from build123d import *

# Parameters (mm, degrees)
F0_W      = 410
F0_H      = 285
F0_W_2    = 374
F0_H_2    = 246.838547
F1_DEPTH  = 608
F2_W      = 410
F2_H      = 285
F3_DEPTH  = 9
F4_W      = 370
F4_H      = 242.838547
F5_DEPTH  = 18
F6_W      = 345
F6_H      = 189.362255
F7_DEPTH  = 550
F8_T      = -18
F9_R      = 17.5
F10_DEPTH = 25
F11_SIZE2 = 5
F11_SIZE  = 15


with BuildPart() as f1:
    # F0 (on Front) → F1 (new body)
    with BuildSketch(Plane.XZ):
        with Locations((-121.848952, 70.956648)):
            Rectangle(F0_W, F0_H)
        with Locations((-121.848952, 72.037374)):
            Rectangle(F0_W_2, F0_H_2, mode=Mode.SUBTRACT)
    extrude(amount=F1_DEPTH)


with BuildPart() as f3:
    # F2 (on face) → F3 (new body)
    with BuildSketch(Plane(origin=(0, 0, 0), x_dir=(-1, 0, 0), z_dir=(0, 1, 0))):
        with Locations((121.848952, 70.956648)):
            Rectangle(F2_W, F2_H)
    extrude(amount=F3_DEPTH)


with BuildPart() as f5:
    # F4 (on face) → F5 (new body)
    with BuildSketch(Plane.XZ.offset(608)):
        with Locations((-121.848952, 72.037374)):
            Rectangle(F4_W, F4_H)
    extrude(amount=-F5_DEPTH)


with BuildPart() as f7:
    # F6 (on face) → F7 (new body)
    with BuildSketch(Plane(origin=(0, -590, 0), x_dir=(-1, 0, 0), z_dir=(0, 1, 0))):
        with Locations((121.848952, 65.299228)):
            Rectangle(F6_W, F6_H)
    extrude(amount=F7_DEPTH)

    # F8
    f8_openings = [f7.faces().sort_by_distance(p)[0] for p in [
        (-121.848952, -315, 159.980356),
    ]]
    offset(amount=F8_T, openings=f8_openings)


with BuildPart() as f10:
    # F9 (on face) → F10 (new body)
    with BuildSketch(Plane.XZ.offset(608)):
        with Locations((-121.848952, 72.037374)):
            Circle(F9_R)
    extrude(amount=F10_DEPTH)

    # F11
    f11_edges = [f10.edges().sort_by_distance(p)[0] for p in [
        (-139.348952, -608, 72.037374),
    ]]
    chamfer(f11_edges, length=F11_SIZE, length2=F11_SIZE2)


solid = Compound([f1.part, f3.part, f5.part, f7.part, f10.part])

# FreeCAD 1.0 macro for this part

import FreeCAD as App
import Part
import Sketcher
from FreeCAD import Vector


def edges_at(feature, points):
    """Names of the edges that pass closest to the given points."""
    edges = feature.Shape.Edges
    near = lambda p: min(range(len(edges)), key=lambda i: edges[i].distToShape(Part.Vertex(*p))[0])
    return sorted({f"Edge{near(p) + 1}" for p in points})


def faces_at(feature, points):
    """Names of the faces that lie closest to the given points."""
    faces = feature.Shape.Faces
    near = lambda p: min(range(len(faces)), key=lambda i: faces[i].distToShape(Part.Vertex(*p))[0])
    return sorted({f"Face{near(p) + 1}" for p in points})

doc = App.newDocument("Part")
params = doc.addObject("Spreadsheet::Sheet", "Params")
for row, (alias, value) in enumerate([
    ("sketch1_width", "410 mm"),
    ("sketch1_width2", "374 mm"),
    ("sketch1_height", "285 mm"),
    ("pad1_length", "608 mm"),
    ("sketch2_width", "410 mm"),
    ("sketch2_height", "285 mm"),
    ("pad2_length", "9 mm"),
    ("sketch3_width", "370 mm"),
    ("pad3_length", "18 mm"),
    ("sketch4_width", "345 mm"),
    ("pad4_length", "550 mm"),
    ("thickness_wall", "18 mm"),
    ("sketch5_diameter", "35 mm"),
    ("pad5_length", "25 mm"),
    ("chamfer_size", "15 mm"),
    ("chamfer_size2", "5 mm"),
], start=1):
    params.set(f"A{row}", alias)
    params.set(f"B{row}", "=" + value)
    params.setAlias(f"B{row}", alias)

body = doc.addObject("PartDesign::Body", "Body")

sketch1 = body.newObject("Sketcher::SketchObject", "Sketch")
sketch1.AttachmentSupport = (doc.getObject("XZ_Plane"), [""])
sketch1.MapMode = "FlatFace"
sketch1.addGeometry(Part.LineSegment(Vector(-327, 213, 0), Vector(-327, -72, 0)), False)
sketch1.addGeometry(Part.LineSegment(Vector(-327, -72, 0), Vector(83, -72, 0)), False)
sketch1.addGeometry(Part.LineSegment(Vector(83, -72, 0), Vector(83, 213, 0)), False)
sketch1.addGeometry(Part.LineSegment(Vector(83, 213, 0), Vector(-327, 213, 0)), False)
sketch1.addGeometry(Part.LineSegment(Vector(65, -51, 0), Vector(-309, -51, 0)), False)
sketch1.addGeometry(Part.LineSegment(Vector(-309, -51, 0), Vector(-309, 195, 0)), False)
sketch1.addGeometry(Part.LineSegment(Vector(-309, 195, 0), Vector(65, 195, 0)), False)
sketch1.addGeometry(Part.LineSegment(Vector(65, 195, 0), Vector(65, -51, 0)), False)
sketch1.addConstraint(Sketcher.Constraint("Coincident", 0, 2, 1, 1))
sketch1.addConstraint(Sketcher.Constraint("Coincident", 1, 2, 2, 1))
sketch1.addConstraint(Sketcher.Constraint("Coincident", 2, 2, 3, 1))
sketch1.addConstraint(Sketcher.Constraint("Coincident", 3, 2, 0, 1))
sketch1.addConstraint(Sketcher.Constraint("Coincident", 4, 2, 5, 1))
sketch1.addConstraint(Sketcher.Constraint("Coincident", 5, 2, 6, 1))
sketch1.addConstraint(Sketcher.Constraint("Coincident", 6, 2, 7, 1))
sketch1.addConstraint(Sketcher.Constraint("Coincident", 7, 2, 4, 1))
sketch1.addConstraint(Sketcher.Constraint("Vertical", 0))
sketch1.addConstraint(Sketcher.Constraint("Horizontal", 1))
sketch1.addConstraint(Sketcher.Constraint("Vertical", 2))
sketch1.addConstraint(Sketcher.Constraint("Horizontal", 3))
sketch1.addConstraint(Sketcher.Constraint("Horizontal", 4))
sketch1.addConstraint(Sketcher.Constraint("Vertical", 5))
sketch1.addConstraint(Sketcher.Constraint("Horizontal", 6))
sketch1.addConstraint(Sketcher.Constraint("Vertical", 7))
sketch1.addConstraint(Sketcher.Constraint("DistanceX", 1, 1, 1, 2, 410.0))
sketch1.addConstraint(Sketcher.Constraint("DistanceX", 4, 2, 4, 1, 374.0))
sketch1.addConstraint(Sketcher.Constraint("DistanceY", 0, 2, 0, 1, 285.0))
sketch1.addConstraint(Sketcher.Constraint("DistanceX", 0, 2, 4, 2, 18.0))
sketch1.addConstraint(Sketcher.Constraint("DistanceY", 5, 2, 3, 2, 18.0))
sketch1.addConstraint(Sketcher.Constraint("DistanceY", 4, 2, -1, 1, 51.3819))
sketch1.addConstraint(Sketcher.Constraint("DistanceY", 5, 1, 5, 2, 246.838547))
sketch1.addConstraint(Sketcher.Constraint("DistanceX", 0, 2, -1, 1, 326.848952))
sketch1.setExpression("Constraints[16]", "Params.sketch1_width")
sketch1.setExpression("Constraints[17]", "Params.sketch1_width2")
sketch1.setExpression("Constraints[18]", "Params.sketch1_height")
pad1 = body.newObject("PartDesign::Pad", "Pad")
pad1.Profile = sketch1
pad1.setExpression("Length", "Params.pad1_length")
body2 = doc.addObject("PartDesign::Body", "Body001")

sketch2 = body2.newObject("Sketcher::SketchObject", "Sketch001")
sketch2.AttachmentSupport = (doc.getObject("XZ_Plane001"), [""])
sketch2.MapMode = "FlatFace"
sketch2.addGeometry(Part.LineSegment(Vector(83, 213, 0), Vector(83, -72, 0)), False)
sketch2.addGeometry(Part.LineSegment(Vector(83, -72, 0), Vector(-327, -72, 0)), False)
sketch2.addGeometry(Part.LineSegment(Vector(-327, -72, 0), Vector(-327, 213, 0)), False)
sketch2.addGeometry(Part.LineSegment(Vector(-327, 213, 0), Vector(83, 213, 0)), False)
sketch2.addConstraint(Sketcher.Constraint("Coincident", 0, 2, 1, 1))
sketch2.addConstraint(Sketcher.Constraint("Coincident", 1, 2, 2, 1))
sketch2.addConstraint(Sketcher.Constraint("Coincident", 2, 2, 3, 1))
sketch2.addConstraint(Sketcher.Constraint("Coincident", 3, 2, 0, 1))
sketch2.addConstraint(Sketcher.Constraint("Vertical", 0))
sketch2.addConstraint(Sketcher.Constraint("Horizontal", 1))
sketch2.addConstraint(Sketcher.Constraint("Vertical", 2))
sketch2.addConstraint(Sketcher.Constraint("Horizontal", 3))
sketch2.addConstraint(Sketcher.Constraint("DistanceX", 1, 2, 1, 1, 410.0))
sketch2.addConstraint(Sketcher.Constraint("DistanceY", 0, 2, 0, 1, 285.0))
sketch2.addConstraint(Sketcher.Constraint("DistanceX", -1, 1, 0, 2, 83.151048))
sketch2.addConstraint(Sketcher.Constraint("DistanceY", 0, 2, -1, 1, 71.543352))
sketch2.setExpression("Constraints[8]", "Params.sketch2_width")
sketch2.setExpression("Constraints[9]", "Params.sketch2_height")
pad2 = body2.newObject("PartDesign::Pad", "Pad001")
pad2.Profile = sketch2
pad2.setExpression("Length", "Params.pad2_length")
pad2.Reversed = True
body3 = doc.addObject("PartDesign::Body", "Body002")

sketch3 = body3.newObject("Sketcher::SketchObject", "Sketch002")
sketch3.AttachmentSupport = (doc.getObject("XZ_Plane002"), [""])
sketch3.MapMode = "FlatFace"
sketch3.AttachmentOffset = App.Placement(Vector(0, 0, 608), App.Rotation())
sketch3.addGeometry(Part.LineSegment(Vector(-307, 193, 0), Vector(-307, -49, 0)), False)
sketch3.addGeometry(Part.LineSegment(Vector(-307, -49, 0), Vector(63, -49, 0)), False)
sketch3.addGeometry(Part.LineSegment(Vector(63, -49, 0), Vector(63, 193, 0)), False)
sketch3.addGeometry(Part.LineSegment(Vector(63, 193, 0), Vector(-307, 193, 0)), False)
sketch3.addConstraint(Sketcher.Constraint("Coincident", 0, 2, 1, 1))
sketch3.addConstraint(Sketcher.Constraint("Coincident", 1, 2, 2, 1))
sketch3.addConstraint(Sketcher.Constraint("Coincident", 2, 2, 3, 1))
sketch3.addConstraint(Sketcher.Constraint("Coincident", 3, 2, 0, 1))
sketch3.addConstraint(Sketcher.Constraint("Vertical", 0))
sketch3.addConstraint(Sketcher.Constraint("Horizontal", 1))
sketch3.addConstraint(Sketcher.Constraint("Vertical", 2))
sketch3.addConstraint(Sketcher.Constraint("Horizontal", 3))
sketch3.addConstraint(Sketcher.Constraint("DistanceX", 1, 1, 1, 2, 370.0))
sketch3.addConstraint(Sketcher.Constraint("DistanceY", 0, 2, -1, 1, 49.3819))
sketch3.addConstraint(Sketcher.Constraint("DistanceY", 0, 2, 0, 1, 242.838547))
sketch3.addConstraint(Sketcher.Constraint("DistanceX", 0, 2, -1, 1, 306.848952))
sketch3.setExpression("Constraints[8]", "Params.sketch3_width")
pad3 = body3.newObject("PartDesign::Pad", "Pad002")
pad3.Profile = sketch3
pad3.setExpression("Length", "Params.pad3_length")
pad3.Reversed = True
body4 = doc.addObject("PartDesign::Body", "Body003")

sketch4 = body4.newObject("Sketcher::SketchObject", "Sketch003")
sketch4.AttachmentSupport = (doc.getObject("XZ_Plane003"), [""])
sketch4.MapMode = "FlatFace"
sketch4.AttachmentOffset = App.Placement(Vector(0, 0, 590), App.Rotation())
sketch4.addGeometry(Part.LineSegment(Vector(51, 160, 0), Vector(51, -29, 0)), False)
sketch4.addGeometry(Part.LineSegment(Vector(51, -29, 0), Vector(-294, -29, 0)), False)
sketch4.addGeometry(Part.LineSegment(Vector(-294, -29, 0), Vector(-294, 160, 0)), False)
sketch4.addGeometry(Part.LineSegment(Vector(-294, 160, 0), Vector(51, 160, 0)), False)
sketch4.addConstraint(Sketcher.Constraint("Coincident", 0, 2, 1, 1))
sketch4.addConstraint(Sketcher.Constraint("Coincident", 1, 2, 2, 1))
sketch4.addConstraint(Sketcher.Constraint("Coincident", 2, 2, 3, 1))
sketch4.addConstraint(Sketcher.Constraint("Coincident", 3, 2, 0, 1))
sketch4.addConstraint(Sketcher.Constraint("Vertical", 0))
sketch4.addConstraint(Sketcher.Constraint("Horizontal", 1))
sketch4.addConstraint(Sketcher.Constraint("Vertical", 2))
sketch4.addConstraint(Sketcher.Constraint("Horizontal", 3))
sketch4.addConstraint(Sketcher.Constraint("DistanceX", 1, 2, 1, 1, 345.0))
sketch4.addConstraint(Sketcher.Constraint("DistanceY", 0, 2, -1, 1, 29.381899))
sketch4.addConstraint(Sketcher.Constraint("DistanceY", 0, 2, 0, 1, 189.362255))
sketch4.addConstraint(Sketcher.Constraint("DistanceX", -1, 1, 0, 2, 50.651048))
sketch4.setExpression("Constraints[8]", "Params.sketch4_width")
pad4 = body4.newObject("PartDesign::Pad", "Pad003")
pad4.Profile = sketch4
pad4.setExpression("Length", "Params.pad4_length")
pad4.Reversed = True
doc.recompute()

thickness = body4.newObject("PartDesign::Thickness", "Thickness")
thickness.Base = (pad4, faces_at(pad4, [(-121.849, -315, 159.98)]))
thickness.setExpression("Value", "Params.thickness_wall")
thickness.Reversed = True
thickness.Join = "Arc"
body5 = doc.addObject("PartDesign::Body", "Body004")

sketch5 = body5.newObject("Sketcher::SketchObject", "Sketch004")
sketch5.AttachmentSupport = (doc.getObject("XZ_Plane004"), [""])
sketch5.MapMode = "FlatFace"
sketch5.AttachmentOffset = App.Placement(Vector(0, 0, 608), App.Rotation())
sketch5.addGeometry(Part.Circle(Vector(-122, 72, 0), Vector(0, 0, 1), 18), False)
sketch5.addConstraint(Sketcher.Constraint("Diameter", 0, 35.0))
sketch5.addConstraint(Sketcher.Constraint("DistanceX", 0, 3, -1, 1, 121.848952))
sketch5.addConstraint(Sketcher.Constraint("DistanceY", -1, 1, 0, 3, 72.037374))
sketch5.setExpression("Constraints[0]", "Params.sketch5_diameter")
pad5 = body5.newObject("PartDesign::Pad", "Pad004")
pad5.Profile = sketch5
pad5.setExpression("Length", "Params.pad5_length")
doc.recompute()

chamfer = body5.newObject("PartDesign::Chamfer", "Chamfer")
chamfer.Base = (pad5, edges_at(pad5, [(-139.349, -608, 72.037)]))
chamfer.ChamferType = "Two distances"
chamfer.setExpression("Size", "Params.chamfer_size")
chamfer.setExpression("Size2", "Params.chamfer_size2")

doc.recompute()
